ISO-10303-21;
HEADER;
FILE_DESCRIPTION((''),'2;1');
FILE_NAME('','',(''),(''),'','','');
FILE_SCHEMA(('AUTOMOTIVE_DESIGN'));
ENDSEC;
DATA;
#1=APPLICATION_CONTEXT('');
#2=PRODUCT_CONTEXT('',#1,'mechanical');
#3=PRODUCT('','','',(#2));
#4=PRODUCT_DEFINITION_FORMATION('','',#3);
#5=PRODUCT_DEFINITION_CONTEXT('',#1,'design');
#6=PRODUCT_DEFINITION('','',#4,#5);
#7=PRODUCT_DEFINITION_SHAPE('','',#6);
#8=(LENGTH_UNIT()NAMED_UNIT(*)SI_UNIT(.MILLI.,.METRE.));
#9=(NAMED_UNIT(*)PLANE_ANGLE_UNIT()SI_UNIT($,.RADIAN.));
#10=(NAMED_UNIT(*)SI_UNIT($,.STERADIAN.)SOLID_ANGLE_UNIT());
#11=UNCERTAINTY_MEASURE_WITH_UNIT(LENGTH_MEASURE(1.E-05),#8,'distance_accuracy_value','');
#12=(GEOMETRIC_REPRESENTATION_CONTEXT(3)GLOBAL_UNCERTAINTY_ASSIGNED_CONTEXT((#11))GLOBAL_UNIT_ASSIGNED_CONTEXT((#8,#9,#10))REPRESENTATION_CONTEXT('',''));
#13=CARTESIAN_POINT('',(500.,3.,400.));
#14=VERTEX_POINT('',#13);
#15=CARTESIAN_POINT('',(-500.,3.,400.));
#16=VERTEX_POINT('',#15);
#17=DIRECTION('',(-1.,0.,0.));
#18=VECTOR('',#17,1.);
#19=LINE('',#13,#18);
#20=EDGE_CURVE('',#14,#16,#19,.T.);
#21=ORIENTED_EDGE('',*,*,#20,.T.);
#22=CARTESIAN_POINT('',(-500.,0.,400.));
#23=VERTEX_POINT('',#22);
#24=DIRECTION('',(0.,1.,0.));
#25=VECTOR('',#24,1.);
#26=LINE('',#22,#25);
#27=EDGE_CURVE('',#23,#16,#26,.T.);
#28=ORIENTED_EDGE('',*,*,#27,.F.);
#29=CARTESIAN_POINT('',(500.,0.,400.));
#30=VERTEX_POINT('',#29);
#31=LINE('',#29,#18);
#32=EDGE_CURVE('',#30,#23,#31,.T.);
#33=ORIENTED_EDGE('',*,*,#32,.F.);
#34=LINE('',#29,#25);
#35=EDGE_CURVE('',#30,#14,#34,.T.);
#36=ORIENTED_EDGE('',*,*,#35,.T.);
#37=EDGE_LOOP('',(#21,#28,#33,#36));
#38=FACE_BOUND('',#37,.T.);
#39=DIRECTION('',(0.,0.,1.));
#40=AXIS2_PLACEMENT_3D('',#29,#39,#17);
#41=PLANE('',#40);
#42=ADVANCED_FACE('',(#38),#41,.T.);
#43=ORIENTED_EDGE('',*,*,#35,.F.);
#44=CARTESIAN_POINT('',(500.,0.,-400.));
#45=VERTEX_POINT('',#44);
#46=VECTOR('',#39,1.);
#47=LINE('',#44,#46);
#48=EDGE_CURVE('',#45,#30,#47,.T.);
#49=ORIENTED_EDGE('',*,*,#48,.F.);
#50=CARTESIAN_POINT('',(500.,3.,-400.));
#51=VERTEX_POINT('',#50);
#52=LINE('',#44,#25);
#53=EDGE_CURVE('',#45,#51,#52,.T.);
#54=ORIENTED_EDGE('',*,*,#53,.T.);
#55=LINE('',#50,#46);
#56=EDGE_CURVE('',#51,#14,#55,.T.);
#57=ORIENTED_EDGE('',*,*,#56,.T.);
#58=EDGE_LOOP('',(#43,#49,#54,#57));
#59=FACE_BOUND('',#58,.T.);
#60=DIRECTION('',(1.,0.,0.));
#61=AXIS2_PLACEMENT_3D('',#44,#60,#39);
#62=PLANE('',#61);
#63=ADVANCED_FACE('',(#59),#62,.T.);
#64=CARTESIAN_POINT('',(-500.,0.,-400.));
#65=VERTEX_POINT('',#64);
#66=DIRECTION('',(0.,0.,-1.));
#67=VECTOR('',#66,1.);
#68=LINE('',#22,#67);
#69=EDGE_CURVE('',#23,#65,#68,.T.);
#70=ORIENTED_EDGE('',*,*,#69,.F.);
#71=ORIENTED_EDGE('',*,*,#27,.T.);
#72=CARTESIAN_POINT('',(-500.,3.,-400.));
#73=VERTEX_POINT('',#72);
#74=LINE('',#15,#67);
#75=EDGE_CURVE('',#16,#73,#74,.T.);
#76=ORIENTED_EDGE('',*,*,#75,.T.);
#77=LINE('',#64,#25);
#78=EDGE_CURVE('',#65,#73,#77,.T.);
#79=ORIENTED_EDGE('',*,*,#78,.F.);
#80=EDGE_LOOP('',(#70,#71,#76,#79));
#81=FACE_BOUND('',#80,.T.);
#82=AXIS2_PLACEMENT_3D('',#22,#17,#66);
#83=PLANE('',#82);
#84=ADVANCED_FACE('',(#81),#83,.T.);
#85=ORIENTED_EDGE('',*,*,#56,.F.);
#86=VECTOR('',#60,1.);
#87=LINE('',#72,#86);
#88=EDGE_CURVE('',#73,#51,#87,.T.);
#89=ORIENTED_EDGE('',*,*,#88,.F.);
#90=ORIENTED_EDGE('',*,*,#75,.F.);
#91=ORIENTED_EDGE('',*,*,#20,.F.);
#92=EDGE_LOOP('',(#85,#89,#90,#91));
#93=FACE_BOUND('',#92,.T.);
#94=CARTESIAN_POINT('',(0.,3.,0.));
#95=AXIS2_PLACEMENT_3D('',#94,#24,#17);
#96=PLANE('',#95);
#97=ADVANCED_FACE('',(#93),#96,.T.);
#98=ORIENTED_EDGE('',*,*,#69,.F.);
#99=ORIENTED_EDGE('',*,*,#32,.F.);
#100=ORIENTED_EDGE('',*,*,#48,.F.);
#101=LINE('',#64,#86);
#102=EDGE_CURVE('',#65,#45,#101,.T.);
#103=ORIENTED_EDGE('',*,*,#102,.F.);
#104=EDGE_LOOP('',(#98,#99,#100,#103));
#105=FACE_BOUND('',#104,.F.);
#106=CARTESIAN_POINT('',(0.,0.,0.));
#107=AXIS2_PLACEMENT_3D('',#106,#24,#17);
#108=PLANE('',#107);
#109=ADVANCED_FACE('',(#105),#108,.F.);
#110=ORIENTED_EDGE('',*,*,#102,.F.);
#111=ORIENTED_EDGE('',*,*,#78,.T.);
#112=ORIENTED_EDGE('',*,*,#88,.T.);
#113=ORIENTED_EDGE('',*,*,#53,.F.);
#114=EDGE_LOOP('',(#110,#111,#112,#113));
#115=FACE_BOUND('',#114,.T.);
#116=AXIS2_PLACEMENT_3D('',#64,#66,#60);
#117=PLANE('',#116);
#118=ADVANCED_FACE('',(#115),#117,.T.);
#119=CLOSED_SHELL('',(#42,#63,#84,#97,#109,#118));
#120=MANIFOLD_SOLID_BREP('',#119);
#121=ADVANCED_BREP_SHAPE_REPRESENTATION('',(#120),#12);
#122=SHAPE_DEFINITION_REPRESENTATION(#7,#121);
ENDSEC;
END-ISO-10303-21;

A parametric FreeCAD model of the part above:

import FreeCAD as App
import Part
import Sketcher
from FreeCAD import Vector


def add_polygon(sketch, points):
    """Adds a closed chain of lines whose ends are joined by coincident constraints."""
    first, n = sketch.GeometryCount, len(points)
    for a, b in zip(points, points[1:] + points[:1]):
        sketch.addGeometry(Part.LineSegment(App.Vector(*a, 0), App.Vector(*b, 0)), False)
    for i in range(n):
        sketch.addConstraint(Sketcher.Constraint("Coincident", first + i, 2, first + (i + 1) % n, 1))

doc = App.newDocument("Part")
body = doc.addObject("PartDesign::Body", "Body")

# Sketch on XZ plane
sketch1 = body.newObject("Sketcher::SketchObject", "Sketch")
sketch1.AttachmentSupport = (doc.getObject("XZ_Plane"), [""])
sketch1.MapMode = "FlatFace"
add_polygon(sketch1, [(-500, 400), (500, 400), (500, -400), (-500, -400)])  # lines 0-3
sketch1.addConstraint(Sketcher.Constraint("Horizontal", 0))
sketch1.addConstraint(Sketcher.Constraint("Vertical", 1))
sketch1.addConstraint(Sketcher.Constraint("Horizontal", 2))
sketch1.addConstraint(Sketcher.Constraint("Vertical", 3))
sketch1.addConstraint(Sketcher.Constraint("Symmetric", 0, 2, 2, 2, -1, 1))
sketch1.addConstraint(Sketcher.Constraint("DistanceX", 0, 1, 0, 2, 1000.0))
sketch1.addConstraint(Sketcher.Constraint("DistanceY", 1, 2, 1, 1, 800.0))
pad1 = body.newObject("PartDesign::Pad", "Pad")
pad1.Profile = sketch1
pad1.Length = 3
pad1.Reversed = True

doc.recompute()
